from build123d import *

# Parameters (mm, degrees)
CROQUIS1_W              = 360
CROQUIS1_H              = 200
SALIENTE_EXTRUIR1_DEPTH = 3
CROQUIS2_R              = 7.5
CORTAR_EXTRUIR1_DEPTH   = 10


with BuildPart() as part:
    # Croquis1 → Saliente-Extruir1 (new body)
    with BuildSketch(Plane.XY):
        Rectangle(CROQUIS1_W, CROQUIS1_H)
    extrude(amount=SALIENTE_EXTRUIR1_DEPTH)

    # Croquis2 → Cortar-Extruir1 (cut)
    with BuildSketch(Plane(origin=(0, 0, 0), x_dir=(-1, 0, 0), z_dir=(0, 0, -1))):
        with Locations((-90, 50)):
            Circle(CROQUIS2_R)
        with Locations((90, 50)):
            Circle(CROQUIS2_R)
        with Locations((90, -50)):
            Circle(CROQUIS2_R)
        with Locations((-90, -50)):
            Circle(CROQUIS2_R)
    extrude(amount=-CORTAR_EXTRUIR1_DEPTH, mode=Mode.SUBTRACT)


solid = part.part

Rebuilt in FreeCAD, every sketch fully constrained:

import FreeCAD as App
import Part
import Sketcher


def add_polygon(sketch, points):
    """Adds a closed chain of lines whose ends are joined by coincident constraints."""
    first, n = sketch.GeometryCount, len(points)
    for a, b in zip(points, points[1:] + points[:1]):
        sketch.addGeometry(Part.LineSegment(App.Vector(*a, 0), App.Vector(*b, 0)), False)
    for i in range(n):
        sketch.addConstraint(Sketcher.Constraint("Coincident", first + i, 2, first + (i + 1) % n, 1))

doc = App.newDocument("Part")
body = doc.addObject("PartDesign::Body", "Body")

sketch1 = body.newObject("Sketcher::SketchObject", "Sketch")
sketch1.AttachmentSupport = (doc.getObject("XY_Plane"), [""])
sketch1.MapMode = "FlatFace"
add_polygon(sketch1, [(-180, 100), (-180, -100), (180, -100), (180, 100)])
sketch1.addConstraint(Sketcher.Constraint("Vertical", 0))
sketch1.addConstraint(Sketcher.Constraint("Horizontal", 1))
sketch1.addConstraint(Sketcher.Constraint("Vertical", 2))
sketch1.addConstraint(Sketcher.Constraint("Horizontal", 3))
sketch1.addConstraint(Sketcher.Constraint("Symmetric", 0, 2, 2, 2, -1, 1))
sketch1.addConstraint(Sketcher.Constraint("DistanceX", 1, 1, 1, 2, 360.0))
sketch1.addConstraint(Sketcher.Constraint("DistanceY", 0, 2, 0, 1, 200.0))
pad1 = body.newObject("PartDesign::Pad", "Pad")
pad1.Profile = sketch1
pad1.Length = 3

sketch2 = body.newObject("Sketcher::SketchObject", "Sketch001")
sketch2.AttachmentSupport = (doc.getObject("XY_Plane"), [""])
sketch2.MapMode = "FlatFace"
sketch2.addGeometry(Part.Circle(App.Vector(90, 50, 0), App.Vector(0, 0, 1), 8), False)
sketch2.addGeometry(Part.Circle(App.Vector(-90, 50, 0), App.Vector(0, 0, 1), 8), False)
sketch2.addGeometry(Part.Circle(App.Vector(-90, -50, 0), App.Vector(0, 0, 1), 8), False)
sketch2.addGeometry(Part.Circle(App.Vector(90, -50, 0), App.Vector(0, 0, 1), 8), False)
sketch2.addConstraint(Sketcher.Constraint("Equal", 0, 1))
sketch2.addConstraint(Sketcher.Constraint("Equal", 1, 2))
sketch2.addConstraint(Sketcher.Constraint("Equal", 2, 3))
sketch2.addConstraint(Sketcher.Constraint("Symmetric", 0, 3, 2, 3, -1, 1))
sketch2.addConstraint(Sketcher.Constraint("Symmetric", 1, 3, 3, 3, -1, 1))
sketch2.addConstraint(Sketcher.Constraint("Symmetric", 0, 3, 1, 3, -2))
sketch2.addConstraint(Sketcher.Constraint("Diameter", 0, 15.0))
sketch2.addConstraint(Sketcher.Constraint("DistanceX", -1, 1, 0, 3, 90.0))
sketch2.addConstraint(Sketcher.Constraint("DistanceY", -1, 1, 0, 3, 50.0))
pocket1 = body.newObject("PartDesign::Pocket", "Pocket")
pocket1.Profile = sketch2
pocket1.Length = 10
pocket1.Reversed = True

doc.recompute()
